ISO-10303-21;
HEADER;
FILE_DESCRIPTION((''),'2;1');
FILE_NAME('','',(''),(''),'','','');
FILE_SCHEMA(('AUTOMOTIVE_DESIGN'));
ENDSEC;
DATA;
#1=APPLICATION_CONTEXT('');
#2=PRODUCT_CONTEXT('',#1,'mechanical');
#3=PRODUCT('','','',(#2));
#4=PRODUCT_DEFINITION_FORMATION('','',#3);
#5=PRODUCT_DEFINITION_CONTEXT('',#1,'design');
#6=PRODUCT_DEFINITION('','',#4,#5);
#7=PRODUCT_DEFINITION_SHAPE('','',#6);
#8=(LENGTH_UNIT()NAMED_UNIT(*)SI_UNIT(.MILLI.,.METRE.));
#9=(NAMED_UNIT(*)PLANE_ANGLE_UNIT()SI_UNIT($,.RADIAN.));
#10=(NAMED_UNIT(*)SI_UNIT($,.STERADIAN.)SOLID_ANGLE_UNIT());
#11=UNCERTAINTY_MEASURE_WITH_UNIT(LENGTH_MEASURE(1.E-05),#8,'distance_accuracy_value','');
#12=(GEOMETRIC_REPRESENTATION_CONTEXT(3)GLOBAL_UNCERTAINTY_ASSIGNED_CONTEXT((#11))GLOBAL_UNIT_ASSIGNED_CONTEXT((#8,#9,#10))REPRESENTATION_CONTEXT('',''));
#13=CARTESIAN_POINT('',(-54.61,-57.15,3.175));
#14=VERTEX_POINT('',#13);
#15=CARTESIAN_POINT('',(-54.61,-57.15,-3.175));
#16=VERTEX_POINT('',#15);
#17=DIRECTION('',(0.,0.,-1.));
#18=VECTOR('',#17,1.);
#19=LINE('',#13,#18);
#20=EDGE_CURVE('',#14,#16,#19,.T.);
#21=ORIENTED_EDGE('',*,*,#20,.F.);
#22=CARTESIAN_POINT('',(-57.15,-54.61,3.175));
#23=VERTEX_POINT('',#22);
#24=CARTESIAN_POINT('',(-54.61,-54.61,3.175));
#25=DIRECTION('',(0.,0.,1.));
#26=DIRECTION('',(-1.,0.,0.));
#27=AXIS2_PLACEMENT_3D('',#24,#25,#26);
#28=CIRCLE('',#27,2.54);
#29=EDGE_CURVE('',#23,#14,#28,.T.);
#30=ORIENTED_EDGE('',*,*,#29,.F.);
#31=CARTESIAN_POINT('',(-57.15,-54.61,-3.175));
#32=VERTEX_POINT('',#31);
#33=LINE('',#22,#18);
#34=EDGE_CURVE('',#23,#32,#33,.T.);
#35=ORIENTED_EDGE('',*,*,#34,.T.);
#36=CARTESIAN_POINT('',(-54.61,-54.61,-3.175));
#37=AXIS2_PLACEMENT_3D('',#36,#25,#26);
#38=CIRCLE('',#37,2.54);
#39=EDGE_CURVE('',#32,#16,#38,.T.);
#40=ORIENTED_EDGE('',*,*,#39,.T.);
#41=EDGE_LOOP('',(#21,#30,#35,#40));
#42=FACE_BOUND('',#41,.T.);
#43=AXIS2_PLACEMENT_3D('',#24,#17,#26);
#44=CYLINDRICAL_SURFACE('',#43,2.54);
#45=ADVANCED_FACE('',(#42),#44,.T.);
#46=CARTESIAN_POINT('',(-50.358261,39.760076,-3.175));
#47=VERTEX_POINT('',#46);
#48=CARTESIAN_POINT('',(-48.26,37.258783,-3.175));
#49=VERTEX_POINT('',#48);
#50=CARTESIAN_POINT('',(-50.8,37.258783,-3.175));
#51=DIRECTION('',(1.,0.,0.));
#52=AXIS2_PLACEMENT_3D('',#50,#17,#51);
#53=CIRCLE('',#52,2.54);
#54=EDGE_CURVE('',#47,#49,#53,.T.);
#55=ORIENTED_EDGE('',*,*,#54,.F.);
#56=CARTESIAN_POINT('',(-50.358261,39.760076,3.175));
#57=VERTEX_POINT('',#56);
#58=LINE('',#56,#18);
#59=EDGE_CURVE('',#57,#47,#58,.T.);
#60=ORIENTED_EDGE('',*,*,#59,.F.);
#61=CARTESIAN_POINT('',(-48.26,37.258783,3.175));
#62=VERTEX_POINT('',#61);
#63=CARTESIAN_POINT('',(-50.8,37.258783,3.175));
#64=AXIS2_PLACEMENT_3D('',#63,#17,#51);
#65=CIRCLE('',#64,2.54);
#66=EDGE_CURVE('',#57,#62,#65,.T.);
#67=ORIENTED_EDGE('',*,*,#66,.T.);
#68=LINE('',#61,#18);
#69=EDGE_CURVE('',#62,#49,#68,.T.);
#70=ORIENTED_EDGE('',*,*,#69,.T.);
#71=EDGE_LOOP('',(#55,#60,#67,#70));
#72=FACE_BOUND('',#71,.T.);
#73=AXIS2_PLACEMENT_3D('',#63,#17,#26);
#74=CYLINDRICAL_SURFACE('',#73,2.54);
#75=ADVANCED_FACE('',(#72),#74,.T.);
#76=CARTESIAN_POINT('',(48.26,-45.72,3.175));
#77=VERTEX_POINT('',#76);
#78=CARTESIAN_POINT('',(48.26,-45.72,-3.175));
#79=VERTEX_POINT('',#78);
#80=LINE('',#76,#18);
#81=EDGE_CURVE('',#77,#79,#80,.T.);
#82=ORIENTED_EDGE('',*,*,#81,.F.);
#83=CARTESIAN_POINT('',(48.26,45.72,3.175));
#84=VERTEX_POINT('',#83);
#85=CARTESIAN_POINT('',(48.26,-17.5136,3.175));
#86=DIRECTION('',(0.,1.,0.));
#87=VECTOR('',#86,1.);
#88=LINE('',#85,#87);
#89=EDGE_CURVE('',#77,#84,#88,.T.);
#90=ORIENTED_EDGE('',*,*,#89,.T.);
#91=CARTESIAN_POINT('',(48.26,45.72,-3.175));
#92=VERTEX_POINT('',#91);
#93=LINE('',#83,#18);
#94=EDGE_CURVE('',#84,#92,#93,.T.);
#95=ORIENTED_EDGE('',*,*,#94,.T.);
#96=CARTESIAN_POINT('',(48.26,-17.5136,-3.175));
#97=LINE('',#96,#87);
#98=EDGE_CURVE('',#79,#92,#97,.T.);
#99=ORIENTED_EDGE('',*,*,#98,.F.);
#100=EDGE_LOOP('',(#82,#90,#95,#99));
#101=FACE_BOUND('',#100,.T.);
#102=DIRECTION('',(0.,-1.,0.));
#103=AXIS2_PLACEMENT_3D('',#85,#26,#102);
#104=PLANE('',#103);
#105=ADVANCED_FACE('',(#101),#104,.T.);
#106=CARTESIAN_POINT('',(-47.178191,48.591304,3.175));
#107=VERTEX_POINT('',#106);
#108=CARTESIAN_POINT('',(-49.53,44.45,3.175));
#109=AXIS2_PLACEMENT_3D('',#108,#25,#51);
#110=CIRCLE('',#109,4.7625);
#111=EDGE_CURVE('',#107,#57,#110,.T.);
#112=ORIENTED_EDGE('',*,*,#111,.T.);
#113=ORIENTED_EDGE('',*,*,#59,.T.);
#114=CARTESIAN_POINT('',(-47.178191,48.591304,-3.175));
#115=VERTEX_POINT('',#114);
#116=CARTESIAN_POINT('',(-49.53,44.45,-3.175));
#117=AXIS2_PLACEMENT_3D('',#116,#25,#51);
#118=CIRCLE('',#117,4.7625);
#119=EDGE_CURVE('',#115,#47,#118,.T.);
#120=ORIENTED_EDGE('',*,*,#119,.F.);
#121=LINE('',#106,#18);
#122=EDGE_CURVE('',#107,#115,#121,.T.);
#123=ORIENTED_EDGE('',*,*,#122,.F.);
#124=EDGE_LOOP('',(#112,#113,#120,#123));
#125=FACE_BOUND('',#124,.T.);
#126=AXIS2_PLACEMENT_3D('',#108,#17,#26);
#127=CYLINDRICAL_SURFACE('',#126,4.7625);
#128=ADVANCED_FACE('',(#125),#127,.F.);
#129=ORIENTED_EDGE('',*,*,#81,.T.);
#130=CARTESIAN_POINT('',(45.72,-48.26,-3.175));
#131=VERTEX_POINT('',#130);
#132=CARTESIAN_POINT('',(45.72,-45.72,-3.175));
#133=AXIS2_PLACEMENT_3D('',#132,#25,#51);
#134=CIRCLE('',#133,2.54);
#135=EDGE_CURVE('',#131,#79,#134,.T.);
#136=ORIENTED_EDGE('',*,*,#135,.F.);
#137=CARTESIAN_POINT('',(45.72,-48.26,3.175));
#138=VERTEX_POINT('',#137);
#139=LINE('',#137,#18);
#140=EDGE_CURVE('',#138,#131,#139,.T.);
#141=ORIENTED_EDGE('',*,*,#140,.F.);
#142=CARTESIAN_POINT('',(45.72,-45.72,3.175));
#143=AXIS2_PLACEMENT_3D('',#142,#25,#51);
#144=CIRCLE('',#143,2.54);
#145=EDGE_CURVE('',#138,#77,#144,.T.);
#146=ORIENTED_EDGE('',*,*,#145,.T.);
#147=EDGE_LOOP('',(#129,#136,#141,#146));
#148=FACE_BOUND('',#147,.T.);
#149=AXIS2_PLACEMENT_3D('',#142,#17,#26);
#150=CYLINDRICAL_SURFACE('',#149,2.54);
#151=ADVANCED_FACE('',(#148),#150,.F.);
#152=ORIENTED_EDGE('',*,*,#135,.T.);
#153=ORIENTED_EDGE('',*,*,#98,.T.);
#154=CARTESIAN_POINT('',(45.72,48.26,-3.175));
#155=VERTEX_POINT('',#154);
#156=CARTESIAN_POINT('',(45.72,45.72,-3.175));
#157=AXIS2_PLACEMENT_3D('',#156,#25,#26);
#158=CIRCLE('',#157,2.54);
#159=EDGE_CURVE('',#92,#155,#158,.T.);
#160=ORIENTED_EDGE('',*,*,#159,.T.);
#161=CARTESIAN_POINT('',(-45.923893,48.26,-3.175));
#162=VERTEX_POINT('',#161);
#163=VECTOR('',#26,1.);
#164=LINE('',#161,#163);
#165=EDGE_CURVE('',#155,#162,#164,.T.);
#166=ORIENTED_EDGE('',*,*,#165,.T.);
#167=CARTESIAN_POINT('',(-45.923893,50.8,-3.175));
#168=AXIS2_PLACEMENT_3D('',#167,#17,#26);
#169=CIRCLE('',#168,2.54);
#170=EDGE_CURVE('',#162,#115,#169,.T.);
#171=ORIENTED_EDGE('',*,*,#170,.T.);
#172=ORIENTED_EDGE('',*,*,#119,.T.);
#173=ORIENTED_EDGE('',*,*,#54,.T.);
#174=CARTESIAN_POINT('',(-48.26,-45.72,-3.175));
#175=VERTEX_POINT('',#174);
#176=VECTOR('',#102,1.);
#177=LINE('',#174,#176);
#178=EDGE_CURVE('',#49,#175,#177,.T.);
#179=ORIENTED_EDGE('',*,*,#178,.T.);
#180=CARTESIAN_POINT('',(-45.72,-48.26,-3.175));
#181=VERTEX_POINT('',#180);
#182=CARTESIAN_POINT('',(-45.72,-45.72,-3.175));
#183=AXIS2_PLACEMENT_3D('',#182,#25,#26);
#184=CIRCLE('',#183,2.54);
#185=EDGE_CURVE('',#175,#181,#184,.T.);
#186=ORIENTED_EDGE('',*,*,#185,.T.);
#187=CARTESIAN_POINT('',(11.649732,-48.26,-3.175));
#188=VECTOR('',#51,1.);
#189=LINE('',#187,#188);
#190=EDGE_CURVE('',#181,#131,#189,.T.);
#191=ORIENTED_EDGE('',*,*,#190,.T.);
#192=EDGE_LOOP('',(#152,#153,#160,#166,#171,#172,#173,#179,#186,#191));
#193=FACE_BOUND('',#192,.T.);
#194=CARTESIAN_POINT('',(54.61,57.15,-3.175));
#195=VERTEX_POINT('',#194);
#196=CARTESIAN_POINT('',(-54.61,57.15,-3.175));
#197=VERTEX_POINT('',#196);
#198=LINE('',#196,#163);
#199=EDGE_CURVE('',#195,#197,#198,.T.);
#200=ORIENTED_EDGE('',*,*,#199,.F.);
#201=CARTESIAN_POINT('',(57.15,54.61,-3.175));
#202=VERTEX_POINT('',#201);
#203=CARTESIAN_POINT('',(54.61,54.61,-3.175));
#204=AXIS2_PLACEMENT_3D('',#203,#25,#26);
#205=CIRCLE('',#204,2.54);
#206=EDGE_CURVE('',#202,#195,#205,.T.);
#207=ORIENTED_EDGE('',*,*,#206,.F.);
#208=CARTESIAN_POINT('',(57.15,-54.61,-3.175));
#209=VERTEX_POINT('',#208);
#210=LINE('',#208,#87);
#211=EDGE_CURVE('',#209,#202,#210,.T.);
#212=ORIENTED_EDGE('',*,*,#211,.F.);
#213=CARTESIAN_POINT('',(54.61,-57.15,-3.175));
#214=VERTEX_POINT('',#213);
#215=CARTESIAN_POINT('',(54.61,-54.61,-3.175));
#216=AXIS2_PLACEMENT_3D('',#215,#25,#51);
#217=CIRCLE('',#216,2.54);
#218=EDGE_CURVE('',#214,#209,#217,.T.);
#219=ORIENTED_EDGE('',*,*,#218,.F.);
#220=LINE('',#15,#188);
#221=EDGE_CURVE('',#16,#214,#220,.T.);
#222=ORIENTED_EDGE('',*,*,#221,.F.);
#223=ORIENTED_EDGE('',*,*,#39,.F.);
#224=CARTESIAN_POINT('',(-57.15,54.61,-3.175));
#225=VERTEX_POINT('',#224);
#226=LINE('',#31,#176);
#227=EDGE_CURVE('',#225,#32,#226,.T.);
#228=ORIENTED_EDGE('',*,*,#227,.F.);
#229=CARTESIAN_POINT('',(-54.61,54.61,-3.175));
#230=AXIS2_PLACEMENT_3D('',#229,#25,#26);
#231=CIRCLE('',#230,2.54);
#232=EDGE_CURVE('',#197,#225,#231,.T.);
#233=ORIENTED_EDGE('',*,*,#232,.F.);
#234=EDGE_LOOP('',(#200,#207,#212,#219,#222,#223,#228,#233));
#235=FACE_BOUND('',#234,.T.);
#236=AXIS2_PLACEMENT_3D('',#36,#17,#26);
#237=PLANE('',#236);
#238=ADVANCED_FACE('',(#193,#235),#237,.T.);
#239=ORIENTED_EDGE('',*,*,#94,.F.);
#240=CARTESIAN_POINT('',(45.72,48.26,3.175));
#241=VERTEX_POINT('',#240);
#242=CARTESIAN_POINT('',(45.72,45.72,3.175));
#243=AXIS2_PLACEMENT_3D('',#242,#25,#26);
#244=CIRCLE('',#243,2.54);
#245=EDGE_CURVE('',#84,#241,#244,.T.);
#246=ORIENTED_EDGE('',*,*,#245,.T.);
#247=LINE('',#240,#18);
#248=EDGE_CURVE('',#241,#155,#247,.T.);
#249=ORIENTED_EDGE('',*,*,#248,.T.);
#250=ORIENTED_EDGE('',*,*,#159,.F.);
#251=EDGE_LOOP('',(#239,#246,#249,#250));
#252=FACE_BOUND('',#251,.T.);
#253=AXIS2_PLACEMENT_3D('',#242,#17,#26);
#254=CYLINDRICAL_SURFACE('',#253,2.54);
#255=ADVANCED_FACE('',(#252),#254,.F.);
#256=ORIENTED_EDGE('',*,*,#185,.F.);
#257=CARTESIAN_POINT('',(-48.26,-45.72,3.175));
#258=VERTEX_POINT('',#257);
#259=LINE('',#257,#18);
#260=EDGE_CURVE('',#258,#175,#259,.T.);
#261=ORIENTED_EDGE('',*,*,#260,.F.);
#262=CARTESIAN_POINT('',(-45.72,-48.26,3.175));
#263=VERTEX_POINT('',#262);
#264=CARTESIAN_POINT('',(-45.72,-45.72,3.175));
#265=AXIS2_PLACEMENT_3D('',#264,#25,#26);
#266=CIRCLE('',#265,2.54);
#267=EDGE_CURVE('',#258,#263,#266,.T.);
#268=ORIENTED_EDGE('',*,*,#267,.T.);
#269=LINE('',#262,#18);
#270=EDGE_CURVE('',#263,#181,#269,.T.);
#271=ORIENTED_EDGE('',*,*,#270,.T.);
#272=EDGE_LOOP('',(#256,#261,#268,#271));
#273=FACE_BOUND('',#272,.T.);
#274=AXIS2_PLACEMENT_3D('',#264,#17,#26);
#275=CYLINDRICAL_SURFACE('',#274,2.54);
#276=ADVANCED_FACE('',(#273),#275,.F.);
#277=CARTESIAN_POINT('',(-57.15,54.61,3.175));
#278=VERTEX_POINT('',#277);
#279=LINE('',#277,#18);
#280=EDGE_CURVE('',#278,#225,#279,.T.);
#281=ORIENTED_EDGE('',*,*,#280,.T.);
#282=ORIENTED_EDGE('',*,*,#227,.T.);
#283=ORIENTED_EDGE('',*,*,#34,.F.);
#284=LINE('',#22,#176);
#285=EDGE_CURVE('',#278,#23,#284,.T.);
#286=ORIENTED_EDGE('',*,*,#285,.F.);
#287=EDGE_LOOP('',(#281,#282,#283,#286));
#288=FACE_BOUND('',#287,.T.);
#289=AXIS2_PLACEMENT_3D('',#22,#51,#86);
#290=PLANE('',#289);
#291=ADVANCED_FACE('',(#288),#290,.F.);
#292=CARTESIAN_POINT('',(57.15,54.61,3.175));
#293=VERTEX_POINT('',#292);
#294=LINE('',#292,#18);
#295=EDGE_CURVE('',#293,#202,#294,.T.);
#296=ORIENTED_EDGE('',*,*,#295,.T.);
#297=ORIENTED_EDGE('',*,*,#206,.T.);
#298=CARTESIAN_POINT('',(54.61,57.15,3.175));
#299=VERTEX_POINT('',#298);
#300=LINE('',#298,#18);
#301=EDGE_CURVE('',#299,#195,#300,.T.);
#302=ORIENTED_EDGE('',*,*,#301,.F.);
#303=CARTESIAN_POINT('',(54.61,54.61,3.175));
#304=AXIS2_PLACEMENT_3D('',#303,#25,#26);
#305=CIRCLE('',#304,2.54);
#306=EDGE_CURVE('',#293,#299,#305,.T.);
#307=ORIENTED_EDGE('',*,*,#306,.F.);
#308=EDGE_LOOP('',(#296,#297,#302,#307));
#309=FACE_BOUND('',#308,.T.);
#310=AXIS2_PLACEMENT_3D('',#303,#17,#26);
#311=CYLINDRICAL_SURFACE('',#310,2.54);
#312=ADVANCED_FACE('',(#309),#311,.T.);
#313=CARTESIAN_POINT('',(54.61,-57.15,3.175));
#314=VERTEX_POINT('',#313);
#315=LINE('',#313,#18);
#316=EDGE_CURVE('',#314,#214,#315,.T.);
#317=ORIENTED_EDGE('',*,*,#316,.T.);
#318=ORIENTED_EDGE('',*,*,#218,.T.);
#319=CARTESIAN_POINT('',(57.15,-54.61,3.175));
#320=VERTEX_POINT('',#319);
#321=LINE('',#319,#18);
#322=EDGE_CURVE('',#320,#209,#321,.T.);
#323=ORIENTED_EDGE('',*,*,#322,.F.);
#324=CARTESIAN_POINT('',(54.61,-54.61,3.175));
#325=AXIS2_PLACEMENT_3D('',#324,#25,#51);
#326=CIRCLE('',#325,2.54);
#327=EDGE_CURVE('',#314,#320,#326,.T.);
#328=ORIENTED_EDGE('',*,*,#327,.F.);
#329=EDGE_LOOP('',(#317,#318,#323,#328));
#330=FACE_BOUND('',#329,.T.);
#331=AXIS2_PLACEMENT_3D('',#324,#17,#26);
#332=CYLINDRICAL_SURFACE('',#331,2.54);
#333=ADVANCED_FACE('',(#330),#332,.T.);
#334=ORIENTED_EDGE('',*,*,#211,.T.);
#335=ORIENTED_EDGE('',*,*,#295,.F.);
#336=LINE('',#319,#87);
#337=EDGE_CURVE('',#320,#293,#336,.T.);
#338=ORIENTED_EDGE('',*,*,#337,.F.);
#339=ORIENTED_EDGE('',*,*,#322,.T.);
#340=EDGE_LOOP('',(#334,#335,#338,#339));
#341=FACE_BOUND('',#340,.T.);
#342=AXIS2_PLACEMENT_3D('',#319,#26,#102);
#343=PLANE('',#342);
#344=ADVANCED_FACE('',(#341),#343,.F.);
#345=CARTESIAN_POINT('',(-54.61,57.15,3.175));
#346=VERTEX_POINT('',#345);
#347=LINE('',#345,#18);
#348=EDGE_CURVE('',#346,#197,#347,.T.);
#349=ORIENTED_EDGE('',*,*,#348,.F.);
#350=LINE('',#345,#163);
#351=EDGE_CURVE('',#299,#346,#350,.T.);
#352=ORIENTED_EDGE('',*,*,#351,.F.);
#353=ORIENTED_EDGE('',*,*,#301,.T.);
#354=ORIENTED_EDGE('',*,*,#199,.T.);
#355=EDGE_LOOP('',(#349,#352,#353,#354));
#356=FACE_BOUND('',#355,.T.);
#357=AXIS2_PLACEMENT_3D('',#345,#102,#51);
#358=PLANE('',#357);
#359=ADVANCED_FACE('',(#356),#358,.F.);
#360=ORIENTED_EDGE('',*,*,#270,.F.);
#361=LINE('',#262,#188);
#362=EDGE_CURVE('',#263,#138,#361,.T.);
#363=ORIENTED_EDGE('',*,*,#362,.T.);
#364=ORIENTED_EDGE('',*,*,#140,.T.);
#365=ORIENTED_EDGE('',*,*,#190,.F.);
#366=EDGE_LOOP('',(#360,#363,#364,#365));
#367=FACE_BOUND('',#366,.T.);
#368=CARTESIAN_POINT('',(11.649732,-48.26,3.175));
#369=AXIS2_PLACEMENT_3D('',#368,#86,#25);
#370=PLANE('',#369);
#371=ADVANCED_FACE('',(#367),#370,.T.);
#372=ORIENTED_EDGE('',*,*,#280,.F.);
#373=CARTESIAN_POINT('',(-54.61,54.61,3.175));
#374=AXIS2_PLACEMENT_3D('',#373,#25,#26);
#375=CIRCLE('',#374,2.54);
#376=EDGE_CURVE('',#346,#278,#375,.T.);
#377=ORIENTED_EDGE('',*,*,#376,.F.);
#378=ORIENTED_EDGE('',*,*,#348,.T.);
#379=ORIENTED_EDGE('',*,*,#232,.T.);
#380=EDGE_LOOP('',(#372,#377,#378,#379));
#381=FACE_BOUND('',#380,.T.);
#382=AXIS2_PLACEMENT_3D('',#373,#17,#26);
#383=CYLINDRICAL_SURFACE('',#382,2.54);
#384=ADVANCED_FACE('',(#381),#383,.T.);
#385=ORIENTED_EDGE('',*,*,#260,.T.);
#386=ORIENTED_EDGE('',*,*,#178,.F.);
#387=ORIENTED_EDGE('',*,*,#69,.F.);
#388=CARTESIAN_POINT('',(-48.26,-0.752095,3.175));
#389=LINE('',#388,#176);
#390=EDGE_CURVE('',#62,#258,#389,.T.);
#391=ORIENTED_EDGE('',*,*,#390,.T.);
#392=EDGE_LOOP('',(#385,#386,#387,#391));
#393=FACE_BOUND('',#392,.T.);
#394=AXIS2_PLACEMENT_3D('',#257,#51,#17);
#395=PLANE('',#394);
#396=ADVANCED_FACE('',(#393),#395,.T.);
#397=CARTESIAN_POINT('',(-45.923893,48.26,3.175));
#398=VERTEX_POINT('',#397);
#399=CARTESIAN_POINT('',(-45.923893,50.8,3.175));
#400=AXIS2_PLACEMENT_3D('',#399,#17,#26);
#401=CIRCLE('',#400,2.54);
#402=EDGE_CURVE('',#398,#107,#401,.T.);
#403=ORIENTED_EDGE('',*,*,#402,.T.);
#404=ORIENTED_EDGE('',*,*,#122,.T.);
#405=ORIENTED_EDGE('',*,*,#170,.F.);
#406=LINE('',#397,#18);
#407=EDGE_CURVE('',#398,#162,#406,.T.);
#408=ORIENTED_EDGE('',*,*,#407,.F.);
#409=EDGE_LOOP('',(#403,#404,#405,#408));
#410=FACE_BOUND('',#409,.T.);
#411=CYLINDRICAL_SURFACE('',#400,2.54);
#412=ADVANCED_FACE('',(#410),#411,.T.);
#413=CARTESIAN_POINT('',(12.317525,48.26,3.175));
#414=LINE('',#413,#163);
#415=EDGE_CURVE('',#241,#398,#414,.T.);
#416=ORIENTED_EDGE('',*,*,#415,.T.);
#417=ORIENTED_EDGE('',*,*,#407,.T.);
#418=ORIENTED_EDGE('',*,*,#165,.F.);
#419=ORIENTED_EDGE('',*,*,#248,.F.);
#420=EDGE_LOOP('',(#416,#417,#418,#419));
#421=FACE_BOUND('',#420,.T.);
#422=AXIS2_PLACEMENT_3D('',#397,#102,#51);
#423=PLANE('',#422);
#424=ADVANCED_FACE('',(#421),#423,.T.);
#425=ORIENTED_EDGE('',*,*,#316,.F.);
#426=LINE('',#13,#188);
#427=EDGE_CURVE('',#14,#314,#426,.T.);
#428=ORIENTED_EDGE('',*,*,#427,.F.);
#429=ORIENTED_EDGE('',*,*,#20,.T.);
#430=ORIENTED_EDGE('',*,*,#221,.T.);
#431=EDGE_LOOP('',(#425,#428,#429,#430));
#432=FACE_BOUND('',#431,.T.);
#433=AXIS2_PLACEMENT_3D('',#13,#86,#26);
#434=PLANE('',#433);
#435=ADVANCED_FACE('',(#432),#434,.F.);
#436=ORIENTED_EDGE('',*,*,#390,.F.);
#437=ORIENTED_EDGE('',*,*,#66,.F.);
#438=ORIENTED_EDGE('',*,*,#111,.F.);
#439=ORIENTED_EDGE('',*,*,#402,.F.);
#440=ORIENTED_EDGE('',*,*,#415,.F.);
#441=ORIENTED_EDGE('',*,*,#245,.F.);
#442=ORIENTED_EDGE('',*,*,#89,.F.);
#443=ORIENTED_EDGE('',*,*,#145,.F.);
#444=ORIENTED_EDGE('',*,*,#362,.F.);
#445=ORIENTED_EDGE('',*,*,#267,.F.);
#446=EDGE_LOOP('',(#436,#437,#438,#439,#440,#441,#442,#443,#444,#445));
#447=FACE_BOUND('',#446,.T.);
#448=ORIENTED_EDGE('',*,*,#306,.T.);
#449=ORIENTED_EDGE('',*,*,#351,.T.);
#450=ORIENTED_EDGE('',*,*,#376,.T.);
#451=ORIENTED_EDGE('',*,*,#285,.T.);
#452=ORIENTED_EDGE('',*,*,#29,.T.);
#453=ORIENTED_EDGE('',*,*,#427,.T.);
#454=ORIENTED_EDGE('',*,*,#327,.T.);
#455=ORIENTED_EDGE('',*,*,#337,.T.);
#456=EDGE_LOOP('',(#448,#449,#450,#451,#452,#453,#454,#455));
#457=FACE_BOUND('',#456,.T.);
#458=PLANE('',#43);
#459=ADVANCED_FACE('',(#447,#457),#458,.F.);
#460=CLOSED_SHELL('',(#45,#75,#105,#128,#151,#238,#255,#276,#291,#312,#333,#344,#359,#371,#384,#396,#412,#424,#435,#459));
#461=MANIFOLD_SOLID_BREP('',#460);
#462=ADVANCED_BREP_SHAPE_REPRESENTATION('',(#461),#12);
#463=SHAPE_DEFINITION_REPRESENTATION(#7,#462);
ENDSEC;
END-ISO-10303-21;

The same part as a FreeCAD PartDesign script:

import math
import FreeCAD as App
import Part
import Sketcher
from FreeCAD import Vector
Q = App.Units.Quantity

doc = App.newDocument("Part")
body = doc.addObject("PartDesign::Body", "Body")

# Sketch on XY plane
sketch1 = doc.addObject("Sketcher::SketchObject", "Sketch")
body.addObject(sketch1)
sketch1.AttachmentSupport = (doc.XY_Plane, [""])
sketch1.MapMode = "FlatFace"
sketch1.addGeometry([
    Part.LineSegment(Vector(-54.6, -57.1, 0), Vector(54.6, -57.1, 0)),  # 0
    Part.ArcOfCircle(Part.Circle(Vector(54.6, -54.6, 0), Vector(0, 0, 1), 2.5), math.radians(-90), math.radians(0)),  # 1
    Part.LineSegment(Vector(57.1, -54.6, 0), Vector(57.1, 54.6, 0)),  # 2
    Part.ArcOfCircle(Part.Circle(Vector(54.6, 54.6, 0), Vector(0, 0, 1), 2.5), math.radians(0), math.radians(90)),  # 3
    Part.LineSegment(Vector(54.6, 57.1, 0), Vector(-54.6, 57.1, 0)),  # 4
    Part.ArcOfCircle(Part.Circle(Vector(-54.6, 54.6, 0), Vector(0, 0, 1), 2.5), math.radians(90), math.radians(180)),  # 5
    Part.LineSegment(Vector(-57.1, 54.6, 0), Vector(-57.1, -54.6, 0)),  # 6
    Part.ArcOfCircle(Part.Circle(Vector(-54.6, -54.6, 0), Vector(0, 0, 1), 2.5), math.radians(-180), math.radians(-90)),  # 7
    Part.LineSegment(Vector(45.7, -48.3, 0), Vector(-45.7, -48.3, 0)),  # 8
    Part.ArcOfCircle(Part.Circle(Vector(-45.7, -45.7, 0), Vector(0, 0, 1), 2.5), math.radians(-180), math.radians(-90)),  # 9
    Part.LineSegment(Vector(-48.3, -45.7, 0), Vector(-48.3, 37.3, 0)),  # 10
    Part.ArcOfCircle(Part.Circle(Vector(-50.8, 37.3, 0), Vector(0, 0, 1), 2.5), math.radians(0), math.radians(80)),  # 11
    Part.ArcOfCircle(Part.Circle(Vector(-49.5, 44.5, 0), Vector(0, 0, 1), 4.8), math.radians(60), math.radians(260)),  # 12
    Part.ArcOfCircle(Part.Circle(Vector(-45.9, 50.8, 0), Vector(0, 0, 1), 2.5), math.radians(-120), math.radians(-90)),  # 13
    Part.LineSegment(Vector(-45.9, 48.3, 0), Vector(45.7, 48.3, 0)),  # 14
    Part.ArcOfCircle(Part.Circle(Vector(45.7, 45.7, 0), Vector(0, 0, 1), 2.5), math.radians(0), math.radians(90)),  # 15
    Part.LineSegment(Vector(48.3, 45.7, 0), Vector(48.3, -45.7, 0)),  # 16
    Part.ArcOfCircle(Part.Circle(Vector(45.7, -45.7, 0), Vector(0, 0, 1), 2.5), math.radians(-90), math.radians(0)),  # 17
], False)
sketch1.addConstraint([
    Sketcher.Constraint("Tangent", 0, 2, 1, 1),
    Sketcher.Constraint("Tangent", 1, 2, 2, 1),
    Sketcher.Constraint("Tangent", 2, 2, 3, 1),
    Sketcher.Constraint("Tangent", 3, 2, 4, 1),
    Sketcher.Constraint("Tangent", 4, 2, 5, 1),
    Sketcher.Constraint("Tangent", 5, 2, 6, 1),
    Sketcher.Constraint("Tangent", 6, 2, 7, 1),
    Sketcher.Constraint("Tangent", 7, 2, 0, 1),
    Sketcher.Constraint("Tangent", 8, 2, 9, 2),
    Sketcher.Constraint("Tangent", 9, 1, 10, 1),
    Sketcher.Constraint("Tangent", 10, 2, 11, 1),
    Sketcher.Constraint("Tangent", 11, 2, 12, 2),
    Sketcher.Constraint("Tangent", 12, 1, 13, 1),
    Sketcher.Constraint("Tangent", 13, 2, 14, 1),
    Sketcher.Constraint("Tangent", 14, 2, 15, 2),
    Sketcher.Constraint("Tangent", 15, 1, 16, 1),
    Sketcher.Constraint("Tangent", 16, 2, 17, 2),
    Sketcher.Constraint("Tangent", 17, 1, 8, 1),
    Sketcher.Constraint("Horizontal", 0),
    Sketcher.Constraint("Vertical", 2),
    Sketcher.Constraint("Horizontal", 4),
    Sketcher.Constraint("Vertical", 6),
    Sketcher.Constraint("Horizontal", 8),
    Sketcher.Constraint("Vertical", 10),
    Sketcher.Constraint("Horizontal", 14),
    Sketcher.Constraint("Vertical", 16),
    Sketcher.Constraint("Equal", 1, 3),
    Sketcher.Constraint("Equal", 3, 5),
    Sketcher.Constraint("Equal", 5, 7),
    Sketcher.Constraint("Equal", 7, 9),
    Sketcher.Constraint("Equal", 9, 11),
    Sketcher.Constraint("Equal", 11, 13),
    Sketcher.Constraint("Equal", 13, 15),
    Sketcher.Constraint("Equal", 15, 17),
    Sketcher.Constraint("Symmetric", 1, 3, 5, 3, -1, 1),
    Sketcher.Constraint("Symmetric", 9, 3, 15, 3, -1, 1),
    Sketcher.Constraint("Equal", 4, 2),
    Sketcher.Constraint("Equal", 8, 16),
    Sketcher.Constraint("Radius", 1, Q("0.1 in")),
    Sketcher.Constraint("DistanceX", 0, 1, 0, 2, Q("4.3 in")),
    Sketcher.Constraint("DistanceX", 8, 2, 8, 1, Q("3.6 in")),
    Sketcher.Constraint("Radius", 12, Q("0.1875 in")),
    Sketcher.Constraint("DistanceX", 5, 3, 12, 3, Q("0.2 in")),
    Sketcher.Constraint("DistanceY", 12, 3, 5, 3, Q("0.4 in")),
])
pad1 = doc.addObject("PartDesign::Pad", "Pad")
body.addObject(pad1)
pad1.Profile = sketch1
pad1.Length = Q("0.25 in")
pad1.Midplane = True

doc.recompute()
